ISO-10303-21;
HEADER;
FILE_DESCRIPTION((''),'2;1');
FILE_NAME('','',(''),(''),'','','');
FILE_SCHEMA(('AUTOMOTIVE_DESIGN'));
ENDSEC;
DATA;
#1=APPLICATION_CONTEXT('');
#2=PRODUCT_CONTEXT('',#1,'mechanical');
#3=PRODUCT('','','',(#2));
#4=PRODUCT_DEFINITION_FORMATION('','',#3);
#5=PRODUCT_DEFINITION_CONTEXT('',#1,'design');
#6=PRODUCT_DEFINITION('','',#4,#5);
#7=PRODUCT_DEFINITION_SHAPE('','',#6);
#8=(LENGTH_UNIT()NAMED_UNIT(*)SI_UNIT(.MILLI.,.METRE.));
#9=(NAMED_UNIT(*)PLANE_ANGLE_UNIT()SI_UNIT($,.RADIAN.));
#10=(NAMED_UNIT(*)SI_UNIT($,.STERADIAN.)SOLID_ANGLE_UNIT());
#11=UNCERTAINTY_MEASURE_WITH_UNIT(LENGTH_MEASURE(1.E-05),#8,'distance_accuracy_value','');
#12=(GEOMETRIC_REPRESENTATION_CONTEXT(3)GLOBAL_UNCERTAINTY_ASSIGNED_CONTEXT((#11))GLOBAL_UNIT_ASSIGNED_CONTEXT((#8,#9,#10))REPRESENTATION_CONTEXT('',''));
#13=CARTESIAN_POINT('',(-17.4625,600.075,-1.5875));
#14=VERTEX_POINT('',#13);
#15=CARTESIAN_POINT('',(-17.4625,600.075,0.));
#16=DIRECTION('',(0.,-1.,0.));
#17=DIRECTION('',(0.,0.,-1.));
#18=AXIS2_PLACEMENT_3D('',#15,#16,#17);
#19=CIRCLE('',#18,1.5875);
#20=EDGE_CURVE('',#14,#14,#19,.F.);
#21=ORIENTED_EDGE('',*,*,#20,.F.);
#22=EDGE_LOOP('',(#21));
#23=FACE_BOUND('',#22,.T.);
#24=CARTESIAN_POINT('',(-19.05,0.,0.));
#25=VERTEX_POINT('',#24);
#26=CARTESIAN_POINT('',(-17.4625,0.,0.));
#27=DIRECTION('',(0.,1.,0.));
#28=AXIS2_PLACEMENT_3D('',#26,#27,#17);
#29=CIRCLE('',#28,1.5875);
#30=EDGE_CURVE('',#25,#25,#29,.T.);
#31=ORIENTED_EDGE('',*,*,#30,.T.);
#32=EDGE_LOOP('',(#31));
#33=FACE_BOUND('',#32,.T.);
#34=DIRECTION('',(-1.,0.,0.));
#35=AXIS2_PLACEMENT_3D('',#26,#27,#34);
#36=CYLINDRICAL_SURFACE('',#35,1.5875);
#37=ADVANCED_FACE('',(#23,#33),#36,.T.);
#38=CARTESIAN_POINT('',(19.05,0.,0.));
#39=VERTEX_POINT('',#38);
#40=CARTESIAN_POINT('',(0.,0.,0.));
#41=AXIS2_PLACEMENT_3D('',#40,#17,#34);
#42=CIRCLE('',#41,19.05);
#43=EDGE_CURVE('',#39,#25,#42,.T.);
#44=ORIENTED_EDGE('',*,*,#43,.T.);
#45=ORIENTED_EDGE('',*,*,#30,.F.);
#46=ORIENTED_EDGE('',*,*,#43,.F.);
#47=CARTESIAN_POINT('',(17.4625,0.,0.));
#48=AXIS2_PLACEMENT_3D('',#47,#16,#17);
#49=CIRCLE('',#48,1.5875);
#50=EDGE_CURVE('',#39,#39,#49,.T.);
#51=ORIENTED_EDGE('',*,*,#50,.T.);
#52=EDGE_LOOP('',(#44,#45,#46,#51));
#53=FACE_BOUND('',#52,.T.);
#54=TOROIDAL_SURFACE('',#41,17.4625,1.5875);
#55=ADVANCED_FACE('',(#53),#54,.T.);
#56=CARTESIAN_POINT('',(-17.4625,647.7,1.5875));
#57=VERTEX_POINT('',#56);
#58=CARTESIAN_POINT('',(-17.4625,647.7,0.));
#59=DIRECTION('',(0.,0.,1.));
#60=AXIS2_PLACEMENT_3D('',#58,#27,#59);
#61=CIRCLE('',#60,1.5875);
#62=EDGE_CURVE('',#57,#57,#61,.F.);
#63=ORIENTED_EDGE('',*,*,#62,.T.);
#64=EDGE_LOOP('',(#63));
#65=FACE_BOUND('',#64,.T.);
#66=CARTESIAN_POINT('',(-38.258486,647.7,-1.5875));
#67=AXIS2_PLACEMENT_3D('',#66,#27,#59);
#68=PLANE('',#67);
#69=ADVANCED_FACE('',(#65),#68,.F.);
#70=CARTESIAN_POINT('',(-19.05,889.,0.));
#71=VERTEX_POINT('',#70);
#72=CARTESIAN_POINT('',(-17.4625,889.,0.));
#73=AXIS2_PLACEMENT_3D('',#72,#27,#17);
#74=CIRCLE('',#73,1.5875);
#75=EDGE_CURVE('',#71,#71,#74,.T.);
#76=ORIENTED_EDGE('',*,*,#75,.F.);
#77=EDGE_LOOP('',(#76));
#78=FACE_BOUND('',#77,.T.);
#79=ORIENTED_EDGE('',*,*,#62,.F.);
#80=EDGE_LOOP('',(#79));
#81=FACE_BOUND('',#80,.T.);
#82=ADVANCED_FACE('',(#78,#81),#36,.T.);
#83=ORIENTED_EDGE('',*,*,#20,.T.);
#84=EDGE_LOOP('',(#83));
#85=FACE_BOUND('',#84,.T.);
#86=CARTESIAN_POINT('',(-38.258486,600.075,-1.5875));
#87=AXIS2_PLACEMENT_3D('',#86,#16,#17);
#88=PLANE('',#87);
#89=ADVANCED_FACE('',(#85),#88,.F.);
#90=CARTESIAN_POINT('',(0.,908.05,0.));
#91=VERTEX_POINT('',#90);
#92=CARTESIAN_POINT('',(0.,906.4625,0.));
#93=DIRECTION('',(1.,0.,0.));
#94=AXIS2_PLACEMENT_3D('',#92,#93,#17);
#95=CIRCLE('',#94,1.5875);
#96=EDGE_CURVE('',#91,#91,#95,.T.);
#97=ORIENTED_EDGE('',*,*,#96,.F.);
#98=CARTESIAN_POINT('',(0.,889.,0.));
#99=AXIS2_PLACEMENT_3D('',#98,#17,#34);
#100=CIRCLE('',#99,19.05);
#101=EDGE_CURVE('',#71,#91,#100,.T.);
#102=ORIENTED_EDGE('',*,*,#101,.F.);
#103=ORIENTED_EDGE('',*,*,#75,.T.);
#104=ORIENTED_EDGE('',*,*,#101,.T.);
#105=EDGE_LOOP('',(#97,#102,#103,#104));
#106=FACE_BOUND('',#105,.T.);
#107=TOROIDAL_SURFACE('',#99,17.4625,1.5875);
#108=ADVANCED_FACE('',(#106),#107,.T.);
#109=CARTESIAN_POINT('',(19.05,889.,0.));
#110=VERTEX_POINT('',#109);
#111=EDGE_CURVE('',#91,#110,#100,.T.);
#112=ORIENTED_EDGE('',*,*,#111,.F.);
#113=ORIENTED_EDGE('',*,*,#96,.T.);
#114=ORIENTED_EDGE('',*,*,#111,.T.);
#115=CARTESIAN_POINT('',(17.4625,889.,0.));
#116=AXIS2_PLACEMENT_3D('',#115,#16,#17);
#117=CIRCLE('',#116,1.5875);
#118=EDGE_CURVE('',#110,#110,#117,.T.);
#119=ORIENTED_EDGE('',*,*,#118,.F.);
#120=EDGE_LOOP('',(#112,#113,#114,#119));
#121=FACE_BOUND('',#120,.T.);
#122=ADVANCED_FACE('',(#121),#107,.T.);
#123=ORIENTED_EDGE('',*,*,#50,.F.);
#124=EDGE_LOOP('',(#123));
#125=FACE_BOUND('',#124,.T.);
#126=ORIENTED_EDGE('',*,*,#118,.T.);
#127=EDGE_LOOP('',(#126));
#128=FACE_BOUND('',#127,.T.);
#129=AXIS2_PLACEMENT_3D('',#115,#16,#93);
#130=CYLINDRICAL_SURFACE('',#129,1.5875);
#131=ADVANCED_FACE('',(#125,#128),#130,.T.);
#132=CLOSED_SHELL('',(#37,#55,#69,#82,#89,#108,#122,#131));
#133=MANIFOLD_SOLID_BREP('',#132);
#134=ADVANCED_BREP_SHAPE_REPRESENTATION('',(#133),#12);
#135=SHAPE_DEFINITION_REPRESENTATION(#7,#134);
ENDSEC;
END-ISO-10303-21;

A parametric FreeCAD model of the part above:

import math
import FreeCAD as App
import Part
import Sketcher

V = App.Vector
Q = App.Units.Quantity

doc = App.newDocument("Part")
body = doc.addObject("PartDesign::Body", "Body")

# Sketch on YZ plane
sketch1 = doc.addObject("Sketcher::SketchObject", "Sketch")
body.addObject(sketch1)
sketch1.AttachmentSupport = (doc.YZ_Plane, [""])
sketch1.MapMode = "FlatFace"
sketch1.addGeometry(Part.Circle(V(906.5, 0, 0), V(0, 0, 1), 1.6), False)
sketch1.addConstraint([
    Sketcher.Constraint("PointOnObject", 0, 3, -1),
    Sketcher.Constraint("Diameter", 0, Q("0.125 in")),
    Sketcher.Constraint("DistanceX", -1, 1, 0, 3, Q("35.6875 in")),
])

# Sketch on XY plane
sketch2 = doc.addObject("Sketcher::SketchObject", "Sketch001")
body.addObject(sketch2)
sketch2.AttachmentSupport = (doc.XY_Plane, [""])
sketch2.MapMode = "FlatFace"
sketch2.addGeometry([
    Part.LineSegment(V(-17, 889, 0), V(-17, 0, 0)),
    Part.ArcOfCircle(Part.Circle(V(0, 0, 0), V(0, 0, 1), 17), math.radians(180), math.radians(360)),
    Part.LineSegment(V(17, 0, 0), V(17, 889, 0)),
    Part.ArcOfCircle(Part.Circle(V(0, 889, 0), V(0, 0, 1), 17), math.radians(0), math.radians(180)),
], False)
sketch2.addConstraint([
    Sketcher.Constraint("Tangent", 0, 2, 1, 1),
    Sketcher.Constraint("Tangent", 1, 2, 2, 1),
    Sketcher.Constraint("Tangent", 2, 2, 3, 1),
    Sketcher.Constraint("Tangent", 3, 2, 0, 1),
    Sketcher.Constraint("Vertical", 0),
    Sketcher.Constraint("Vertical", 2),
    Sketcher.Constraint("Coincident", 1, 3, -1, 1),
    Sketcher.Constraint("DistanceY", 0, 2, 0, 1, Q("35 in")),
    Sketcher.Constraint("Radius", 1, Q("0.6875 in")),
])
doc.recompute()

additivepipe = doc.addObject("PartDesign::AdditivePipe", "AdditivePipe")
body.addObject(additivepipe)
additivepipe.Profile = sketch1
additivepipe.Spine = (sketch2, ["Edge1", "Edge2", "Edge3", "Edge4"])

# Sketch on XY plane
sketch3 = doc.addObject("Sketcher::SketchObject", "Sketch002")
body.addObject(sketch3)
sketch3.AttachmentSupport = (doc.XY_Plane, [""])
sketch3.MapMode = "FlatFace"
sketch3.addGeometry([
    Part.LineSegment(V(-38, 648, 0), V(-38, 600, 0)),
    Part.LineSegment(V(-38, 600, 0), V(-2, 600, 0)),
    Part.LineSegment(V(-2, 600, 0), V(-2, 648, 0)),
    Part.LineSegment(V(-2, 648, 0), V(-38, 648, 0)),
], False)
sketch3.addConstraint([
    Sketcher.Constraint("Coincident", 0, 2, 1, 1),
    Sketcher.Constraint("Coincident", 1, 2, 2, 1),
    Sketcher.Constraint("Coincident", 2, 2, 3, 1),
    Sketcher.Constraint("Coincident", 3, 2, 0, 1),
    Sketcher.Constraint("Vertical", 0),
    Sketcher.Constraint("Horizontal", 1),
    Sketcher.Constraint("Vertical", 2),
    Sketcher.Constraint("Horizontal", 3),
    Sketcher.Constraint("DistanceY", -1, 1, 2, 2, Q("25.5 in")),
    Sketcher.Constraint("DistanceY", 0, 2, 0, 1, Q("1.875 in")),
    Sketcher.Constraint("DistanceX", 1, 1, 1, 2, Q("36.037797 mm")),
    Sketcher.Constraint("DistanceX", 1, 2, -1, 1, Q("2.220689 mm")),
])
pocket1 = doc.addObject("PartDesign::Pocket", "Pocket")
body.addObject(pocket1)
pocket1.Profile = sketch3
pocket1.Type = "ThroughAll"
pocket1.Midplane = True

doc.recompute()
